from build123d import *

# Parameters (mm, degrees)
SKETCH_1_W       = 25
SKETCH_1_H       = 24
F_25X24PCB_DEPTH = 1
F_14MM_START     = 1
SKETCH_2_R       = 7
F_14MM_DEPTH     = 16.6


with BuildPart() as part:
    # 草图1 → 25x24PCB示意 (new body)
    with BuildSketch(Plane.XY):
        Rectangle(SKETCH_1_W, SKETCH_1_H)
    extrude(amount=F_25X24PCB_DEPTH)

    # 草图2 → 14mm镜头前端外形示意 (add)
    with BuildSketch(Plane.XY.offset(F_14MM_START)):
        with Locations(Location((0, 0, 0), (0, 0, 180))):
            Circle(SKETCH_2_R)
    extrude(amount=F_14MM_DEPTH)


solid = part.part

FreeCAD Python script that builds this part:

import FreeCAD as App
import Part
import Sketcher

V = App.Vector

doc = App.newDocument("Part")
body = doc.addObject("PartDesign::Body", "Body")

sketch1 = body.newObject("Sketcher::SketchObject", "Sketch")
sketch1.AttachmentSupport = (doc.getObject("XY_Plane"), [""])
sketch1.MapMode = "FlatFace"
sketch1.addGeometry([
    Part.LineSegment(V(-12, 12, 0), V(-12, -12, 0)),
    Part.LineSegment(V(-12, -12, 0), V(12, -12, 0)),
    Part.LineSegment(V(12, -12, 0), V(12, 12, 0)),
    Part.LineSegment(V(12, 12, 0), V(-12, 12, 0)),
], False)
sketch1.addConstraint([
    Sketcher.Constraint("Coincident", 0, 2, 1, 1),
    Sketcher.Constraint("Coincident", 1, 2, 2, 1),
    Sketcher.Constraint("Coincident", 2, 2, 3, 1),
    Sketcher.Constraint("Coincident", 3, 2, 0, 1),
    Sketcher.Constraint("Vertical", 0),
    Sketcher.Constraint("Horizontal", 1),
    Sketcher.Constraint("Vertical", 2),
    Sketcher.Constraint("Horizontal", 3),
    Sketcher.Constraint("Symmetric", 0, 2, 2, 2, -1, 1),
    Sketcher.Constraint("DistanceX", 1, 1, 1, 2, 25.0),
    Sketcher.Constraint("DistanceY", 0, 2, 0, 1, 24.0),
])
pad1 = body.newObject("PartDesign::Pad", "Pad")
pad1.Profile = sketch1
pad1.Length = 1

sketch2 = body.newObject("Sketcher::SketchObject", "Sketch001")
sketch2.AttachmentSupport = (doc.getObject("XY_Plane"), [""])
sketch2.MapMode = "FlatFace"
sketch2.AttachmentOffset = App.Placement(V(0, 0, 1), App.Rotation())
sketch2.addGeometry(Part.Circle(V(0, 0, 0), V(0, 0, 1), 7), False)
sketch2.addConstraint([
    Sketcher.Constraint("Coincident", 0, 3, -1, 1),
    Sketcher.Constraint("Diameter", 0, 14.0),
])
pad2 = body.newObject("PartDesign::Pad", "Pad001")
pad2.Profile = sketch2
pad2.Length = 16.6

doc.recompute()
